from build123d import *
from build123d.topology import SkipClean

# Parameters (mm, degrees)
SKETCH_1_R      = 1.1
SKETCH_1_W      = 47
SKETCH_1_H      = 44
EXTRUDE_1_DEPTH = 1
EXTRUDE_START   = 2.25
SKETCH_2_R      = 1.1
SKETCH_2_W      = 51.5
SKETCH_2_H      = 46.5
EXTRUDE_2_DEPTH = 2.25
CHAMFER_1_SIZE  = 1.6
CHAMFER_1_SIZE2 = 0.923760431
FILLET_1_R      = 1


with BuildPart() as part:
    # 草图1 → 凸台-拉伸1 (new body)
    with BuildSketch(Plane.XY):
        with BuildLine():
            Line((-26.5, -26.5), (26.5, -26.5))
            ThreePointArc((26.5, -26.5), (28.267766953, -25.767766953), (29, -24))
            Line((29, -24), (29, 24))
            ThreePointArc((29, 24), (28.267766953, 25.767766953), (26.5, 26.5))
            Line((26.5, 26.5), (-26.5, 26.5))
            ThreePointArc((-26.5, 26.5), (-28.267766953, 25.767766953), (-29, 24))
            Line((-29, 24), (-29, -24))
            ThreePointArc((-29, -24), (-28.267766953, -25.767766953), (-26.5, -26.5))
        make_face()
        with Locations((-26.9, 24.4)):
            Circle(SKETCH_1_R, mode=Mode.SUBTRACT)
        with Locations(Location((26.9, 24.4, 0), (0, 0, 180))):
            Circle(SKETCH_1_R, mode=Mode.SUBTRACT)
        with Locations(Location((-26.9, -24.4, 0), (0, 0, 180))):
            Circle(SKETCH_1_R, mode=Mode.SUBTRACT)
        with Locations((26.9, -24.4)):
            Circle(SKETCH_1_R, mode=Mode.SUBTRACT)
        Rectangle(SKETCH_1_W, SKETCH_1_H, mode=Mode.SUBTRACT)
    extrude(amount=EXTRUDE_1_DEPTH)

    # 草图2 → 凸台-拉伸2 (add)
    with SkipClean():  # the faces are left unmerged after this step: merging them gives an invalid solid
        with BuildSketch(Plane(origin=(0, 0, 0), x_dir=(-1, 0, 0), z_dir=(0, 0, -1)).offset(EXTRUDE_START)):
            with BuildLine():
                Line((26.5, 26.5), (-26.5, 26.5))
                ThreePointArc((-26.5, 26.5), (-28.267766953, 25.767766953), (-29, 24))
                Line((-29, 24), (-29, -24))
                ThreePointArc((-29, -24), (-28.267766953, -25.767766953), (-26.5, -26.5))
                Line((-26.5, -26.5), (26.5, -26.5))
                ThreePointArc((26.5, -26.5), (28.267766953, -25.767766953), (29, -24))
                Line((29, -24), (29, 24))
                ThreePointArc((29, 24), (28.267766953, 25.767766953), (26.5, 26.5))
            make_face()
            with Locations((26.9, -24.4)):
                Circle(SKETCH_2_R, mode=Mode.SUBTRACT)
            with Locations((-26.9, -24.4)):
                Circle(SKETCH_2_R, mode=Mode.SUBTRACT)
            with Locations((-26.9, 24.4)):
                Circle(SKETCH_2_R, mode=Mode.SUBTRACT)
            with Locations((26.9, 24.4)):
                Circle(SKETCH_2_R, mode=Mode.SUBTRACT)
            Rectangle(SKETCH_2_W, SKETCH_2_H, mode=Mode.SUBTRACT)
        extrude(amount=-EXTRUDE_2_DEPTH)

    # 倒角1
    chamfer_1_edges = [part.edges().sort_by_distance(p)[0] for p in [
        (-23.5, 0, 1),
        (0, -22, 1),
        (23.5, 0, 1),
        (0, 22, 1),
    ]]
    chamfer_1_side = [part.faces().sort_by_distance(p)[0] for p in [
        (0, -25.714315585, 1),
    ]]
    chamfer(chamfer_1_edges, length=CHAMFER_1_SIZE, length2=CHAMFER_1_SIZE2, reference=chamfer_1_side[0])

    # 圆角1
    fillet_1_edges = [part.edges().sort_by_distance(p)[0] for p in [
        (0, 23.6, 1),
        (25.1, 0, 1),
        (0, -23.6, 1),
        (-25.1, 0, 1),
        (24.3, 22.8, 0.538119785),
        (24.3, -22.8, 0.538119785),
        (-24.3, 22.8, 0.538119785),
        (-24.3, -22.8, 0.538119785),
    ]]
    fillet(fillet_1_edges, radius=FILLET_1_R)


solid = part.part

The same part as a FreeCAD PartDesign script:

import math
import FreeCAD as App
import Part
import Sketcher
Q = App.Units.Quantity


def edges_at(feature, points):
    """Names of the edges that pass closest to the given points."""
    edges = feature.Shape.Edges
    near = lambda p: min(range(len(edges)), key=lambda i: edges[i].distToShape(Part.Vertex(*p))[0])
    return sorted({f"Edge{near(p) + 1}" for p in points})

doc = App.newDocument("Part")
body = doc.addObject("PartDesign::Body", "Body")

# Sketch on XY plane
sketch1 = doc.addObject("Sketcher::SketchObject", "Sketch")
body.addObject(sketch1)
sketch1.AttachmentSupport = (doc.XY_Plane, [""])
sketch1.MapMode = "FlatFace"
sketch1.addGeometry([
    Part.LineSegment(App.Vector(-26.5, -26.5, 0), App.Vector(26.5, -26.5, 0)),  # 0
    Part.ArcOfCircle(Part.Circle(App.Vector(26.5, -24, 0), App.Vector(0, 0, 1), 2.5), math.radians(-90), math.radians(0)),  # 1
    Part.LineSegment(App.Vector(29, -24, 0), App.Vector(29, 24, 0)),  # 2
    Part.ArcOfCircle(Part.Circle(App.Vector(26.5, 24, 0), App.Vector(0, 0, 1), 2.5), math.radians(0), math.radians(90)),  # 3
    Part.LineSegment(App.Vector(26.5, 26.5, 0), App.Vector(-26.5, 26.5, 0)),  # 4
    Part.ArcOfCircle(Part.Circle(App.Vector(-26.5, 24, 0), App.Vector(0, 0, 1), 2.5), math.radians(90), math.radians(180)),  # 5
    Part.LineSegment(App.Vector(-29, 24, 0), App.Vector(-29, -24, 0)),  # 6
    Part.ArcOfCircle(Part.Circle(App.Vector(-26.5, -24, 0), App.Vector(0, 0, 1), 2.5), math.radians(180), math.radians(270)),  # 7
    Part.Circle(App.Vector(-26.9, -24.4, 0), App.Vector(0, 0, 1), 1.1),  # 8
    Part.Circle(App.Vector(26.9, -24.4, 0), App.Vector(0, 0, 1), 1.1),  # 9
    Part.Circle(App.Vector(-26.9, 24.4, 0), App.Vector(0, 0, 1), 1.1),  # 10
    Part.LineSegment(App.Vector(23.5, -22, 0), App.Vector(-23.5, -22, 0)),  # 11
    Part.LineSegment(App.Vector(-23.5, -22, 0), App.Vector(-23.5, 22, 0)),  # 12
    Part.LineSegment(App.Vector(-23.5, 22, 0), App.Vector(23.5, 22, 0)),  # 13
    Part.LineSegment(App.Vector(23.5, 22, 0), App.Vector(23.5, -22, 0)),  # 14
    Part.Circle(App.Vector(26.9, 24.4, 0), App.Vector(0, 0, 1), 1.1),  # 15
], False)
sketch1.addConstraint([
    Sketcher.Constraint("Tangent", 0, 2, 1, 1),
    Sketcher.Constraint("Tangent", 1, 2, 2, 1),
    Sketcher.Constraint("Tangent", 2, 2, 3, 1),
    Sketcher.Constraint("Tangent", 3, 2, 4, 1),
    Sketcher.Constraint("Tangent", 4, 2, 5, 1),
    Sketcher.Constraint("Tangent", 5, 2, 6, 1),
    Sketcher.Constraint("Tangent", 6, 2, 7, 1),
    Sketcher.Constraint("Tangent", 7, 2, 0, 1),
    Sketcher.Constraint("Coincident", 11, 2, 12, 1),
    Sketcher.Constraint("Coincident", 12, 2, 13, 1),
    Sketcher.Constraint("Coincident", 13, 2, 14, 1),
    Sketcher.Constraint("Coincident", 14, 2, 11, 1),
    Sketcher.Constraint("Horizontal", 0),
    Sketcher.Constraint("Vertical", 2),
    Sketcher.Constraint("Horizontal", 4),
    Sketcher.Constraint("Vertical", 6),
    Sketcher.Constraint("Horizontal", 11),
    Sketcher.Constraint("Vertical", 12),
    Sketcher.Constraint("Horizontal", 13),
    Sketcher.Constraint("Vertical", 14),
    Sketcher.Constraint("Equal", 1, 3),
    Sketcher.Constraint("Equal", 3, 5),
    Sketcher.Constraint("Equal", 5, 7),
    Sketcher.Constraint("Equal", 8, 9),
    Sketcher.Constraint("Equal", 9, 10),
    Sketcher.Constraint("Equal", 10, 15),
    Sketcher.Constraint("Symmetric", 1, 3, 5, 3, -1, 1),
    Sketcher.Constraint("Symmetric", 9, 3, 10, 3, -1, 1),
    Sketcher.Constraint("Symmetric", 8, 3, 15, 3, -1, 1),
    Sketcher.Constraint("Symmetric", 11, 2, 13, 2, -1, 1),
    Sketcher.Constraint("Symmetric", 8, 3, 9, 3, -2),
    Sketcher.Constraint("Diameter", 8, Q("2.2 mm")),
    Sketcher.Constraint("Radius", 1, Q("2.5 mm")),
    Sketcher.Constraint("DistanceX", 0, 1, 0, 2, Q("53 mm")),
    Sketcher.Constraint("DistanceX", 11, 2, 11, 1, Q("47 mm")),
    Sketcher.Constraint("DistanceY", 2, 1, 2, 2, Q("48 mm")),
    Sketcher.Constraint("DistanceY", 12, 1, 12, 2, Q("44 mm")),
    Sketcher.Constraint("DistanceX", 8, 3, -1, 1, Q("26.9 mm")),
    Sketcher.Constraint("DistanceY", 8, 3, -1, 1, Q("24.4 mm")),
])
pad1 = doc.addObject("PartDesign::Pad", "Pad")
body.addObject(pad1)
pad1.Profile = sketch1
pad1.Length = 1

# Sketch on XY plane
sketch2 = doc.addObject("Sketcher::SketchObject", "Sketch001")
body.addObject(sketch2)
sketch2.AttachmentSupport = (doc.XY_Plane, [""])
sketch2.MapMode = "FlatFace"
sketch2.AttachmentOffset = App.Placement(App.Vector(0, 0, -2.25), App.Rotation())
sketch2.addGeometry([
    Part.LineSegment(App.Vector(-26.5, 26.5, 0), App.Vector(26.5, 26.5, 0)),  # 0
    Part.ArcOfCircle(Part.Circle(App.Vector(26.5, 24, 0), App.Vector(0, 0, 1), 2.5), math.radians(0), math.radians(90)),  # 1
    Part.LineSegment(App.Vector(29, 24, 0), App.Vector(29, -24, 0)),  # 2
    Part.ArcOfCircle(Part.Circle(App.Vector(26.5, -24, 0), App.Vector(0, 0, 1), 2.5), math.radians(-90), math.radians(0)),  # 3
    Part.LineSegment(App.Vector(26.5, -26.5, 0), App.Vector(-26.5, -26.5, 0)),  # 4
    Part.ArcOfCircle(Part.Circle(App.Vector(-26.5, -24, 0), App.Vector(0, 0, 1), 2.5), math.radians(180), math.radians(270)),  # 5
    Part.LineSegment(App.Vector(-29, -24, 0), App.Vector(-29, 24, 0)),  # 6
    Part.ArcOfCircle(Part.Circle(App.Vector(-26.5, 24, 0), App.Vector(0, 0, 1), 2.5), math.radians(90), math.radians(180)),  # 7
    Part.Circle(App.Vector(26.9, -24.4, 0), App.Vector(0, 0, 1), 1.1),  # 8
    Part.Circle(App.Vector(-26.9, -24.4, 0), App.Vector(0, 0, 1), 1.1),  # 9
    Part.Circle(App.Vector(26.9, 24.4, 0), App.Vector(0, 0, 1), 1.1),  # 10
    Part.LineSegment(App.Vector(-25.8, -23.2, 0), App.Vector(25.8, -23.2, 0)),  # 11
    Part.LineSegment(App.Vector(25.8, -23.2, 0), App.Vector(25.8, 23.2, 0)),  # 12
    Part.LineSegment(App.Vector(25.8, 23.2, 0), App.Vector(-25.8, 23.2, 0)),  # 13
    Part.LineSegment(App.Vector(-25.8, 23.2, 0), App.Vector(-25.8, -23.2, 0)),  # 14
    Part.Circle(App.Vector(-26.9, 24.4, 0), App.Vector(0, 0, 1), 1.1),  # 15
], False)
sketch2.addConstraint([
    Sketcher.Constraint("Tangent", 0, 2, 1, 2),
    Sketcher.Constraint("Tangent", 1, 1, 2, 1),
    Sketcher.Constraint("Tangent", 2, 2, 3, 2),
    Sketcher.Constraint("Tangent", 3, 1, 4, 1),
    Sketcher.Constraint("Tangent", 4, 2, 5, 2),
    Sketcher.Constraint("Tangent", 5, 1, 6, 1),
    Sketcher.Constraint("Tangent", 6, 2, 7, 2),
    Sketcher.Constraint("Tangent", 7, 1, 0, 1),
    Sketcher.Constraint("Coincident", 11, 2, 12, 1),
    Sketcher.Constraint("Coincident", 12, 2, 13, 1),
    Sketcher.Constraint("Coincident", 13, 2, 14, 1),
    Sketcher.Constraint("Coincident", 14, 2, 11, 1),
    Sketcher.Constraint("Horizontal", 0),
    Sketcher.Constraint("Vertical", 2),
    Sketcher.Constraint("Horizontal", 4),
    Sketcher.Constraint("Vertical", 6),
    Sketcher.Constraint("Horizontal", 11),
    Sketcher.Constraint("Vertical", 12),
    Sketcher.Constraint("Horizontal", 13),
    Sketcher.Constraint("Vertical", 14),
    Sketcher.Constraint("Equal", 1, 3),
    Sketcher.Constraint("Equal", 3, 5),
    Sketcher.Constraint("Equal", 5, 7),
    Sketcher.Constraint("Equal", 8, 9),
    Sketcher.Constraint("Equal", 9, 10),
    Sketcher.Constraint("Equal", 10, 15),
    Sketcher.Constraint("Symmetric", 1, 3, 5, 3, -1, 1),
    Sketcher.Constraint("Symmetric", 9, 3, 10, 3, -1, 1),
    Sketcher.Constraint("Symmetric", 8, 3, 15, 3, -1, 1),
    Sketcher.Constraint("Symmetric", 11, 2, 13, 2, -1, 1),
    Sketcher.Constraint("Symmetric", 8, 3, 9, 3, -2),
    Sketcher.Constraint("Diameter", 8, Q("2.2 mm")),
    Sketcher.Constraint("Radius", 1, Q("2.5 mm")),
    Sketcher.Constraint("DistanceX", 0, 1, 0, 2, Q("53 mm")),
    Sketcher.Constraint("DistanceY", 2, 2, 2, 1, Q("48 mm")),
    Sketcher.Constraint("DistanceX", 11, 1, 11, 2, Q("51.5 mm")),
    Sketcher.Constraint("DistanceY", 12, 1, 12, 2, Q("46.5 mm")),
    Sketcher.Constraint("DistanceX", -1, 1, 8, 3, Q("26.9 mm")),
    Sketcher.Constraint("DistanceY", 8, 3, -1, 1, Q("24.4 mm")),
])
pad2 = doc.addObject("PartDesign::Pad", "Pad001")
body.addObject(pad2)
pad2.Profile = sketch2
pad2.Length = 2.25
doc.recompute()

chamfer = doc.addObject("PartDesign::Chamfer", "Chamfer")
body.addObject(chamfer)
chamfer.Base = (pad2, edges_at(pad2, [
    (-23.5, 0, 1),
    (0, -22, 1),
    (23.5, 0, 1),
    (0, 22, 1),
]))
chamfer.ChamferType = "Two distances"
chamfer.Size = 1.6
chamfer.Size2 = 0.92376
doc.recompute()

fillet = doc.addObject("PartDesign::Fillet", "Fillet")
body.addObject(fillet)
fillet.Base = (chamfer, edges_at(chamfer, [
    (0, 23.6, 1),
    (25.1, 0, 1),
    (0, -23.6, 1),
    (-25.1, 0, 1),
    (24.3, 22.8, 0.538),
    (24.3, -22.8, 0.538),
    (-24.3, 22.8, 0.538),
    (-24.3, -22.8, 0.538),
]))
fillet.Radius = 1

doc.recompute()
